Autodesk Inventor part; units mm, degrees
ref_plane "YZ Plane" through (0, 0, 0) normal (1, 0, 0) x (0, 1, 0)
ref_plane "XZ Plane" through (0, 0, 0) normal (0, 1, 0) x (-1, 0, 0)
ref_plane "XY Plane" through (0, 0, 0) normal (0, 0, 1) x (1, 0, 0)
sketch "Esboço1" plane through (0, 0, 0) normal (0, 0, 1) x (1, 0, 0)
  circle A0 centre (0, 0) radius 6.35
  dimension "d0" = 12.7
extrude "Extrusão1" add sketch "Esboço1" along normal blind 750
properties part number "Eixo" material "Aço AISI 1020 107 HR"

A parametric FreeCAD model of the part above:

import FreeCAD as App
import Part
import Sketcher

V = App.Vector
Q = App.Units.Quantity

doc = App.newDocument("Part")
body = doc.addObject("PartDesign::Body", "Body")

sketch1 = body.newObject("Sketcher::SketchObject", "Sketch")
sketch1.AttachmentSupport = (doc.getObject("XY_Plane"), [""])
sketch1.MapMode = "FlatFace"
sketch1.addGeometry(Part.Circle(V(0, 0, 0), V(0, 0, 1), 6.35), False)
sketch1.addConstraint(Sketcher.Constraint("Coincident", 0, 3, -1, 1))
sketch1.addConstraint(Sketcher.Constraint("Diameter", 0, Q("12.7 mm")))
pad1 = body.newObject("PartDesign::Pad", "Pad")
pad1.Profile = sketch1
pad1.Length = 750

doc.recompute()
